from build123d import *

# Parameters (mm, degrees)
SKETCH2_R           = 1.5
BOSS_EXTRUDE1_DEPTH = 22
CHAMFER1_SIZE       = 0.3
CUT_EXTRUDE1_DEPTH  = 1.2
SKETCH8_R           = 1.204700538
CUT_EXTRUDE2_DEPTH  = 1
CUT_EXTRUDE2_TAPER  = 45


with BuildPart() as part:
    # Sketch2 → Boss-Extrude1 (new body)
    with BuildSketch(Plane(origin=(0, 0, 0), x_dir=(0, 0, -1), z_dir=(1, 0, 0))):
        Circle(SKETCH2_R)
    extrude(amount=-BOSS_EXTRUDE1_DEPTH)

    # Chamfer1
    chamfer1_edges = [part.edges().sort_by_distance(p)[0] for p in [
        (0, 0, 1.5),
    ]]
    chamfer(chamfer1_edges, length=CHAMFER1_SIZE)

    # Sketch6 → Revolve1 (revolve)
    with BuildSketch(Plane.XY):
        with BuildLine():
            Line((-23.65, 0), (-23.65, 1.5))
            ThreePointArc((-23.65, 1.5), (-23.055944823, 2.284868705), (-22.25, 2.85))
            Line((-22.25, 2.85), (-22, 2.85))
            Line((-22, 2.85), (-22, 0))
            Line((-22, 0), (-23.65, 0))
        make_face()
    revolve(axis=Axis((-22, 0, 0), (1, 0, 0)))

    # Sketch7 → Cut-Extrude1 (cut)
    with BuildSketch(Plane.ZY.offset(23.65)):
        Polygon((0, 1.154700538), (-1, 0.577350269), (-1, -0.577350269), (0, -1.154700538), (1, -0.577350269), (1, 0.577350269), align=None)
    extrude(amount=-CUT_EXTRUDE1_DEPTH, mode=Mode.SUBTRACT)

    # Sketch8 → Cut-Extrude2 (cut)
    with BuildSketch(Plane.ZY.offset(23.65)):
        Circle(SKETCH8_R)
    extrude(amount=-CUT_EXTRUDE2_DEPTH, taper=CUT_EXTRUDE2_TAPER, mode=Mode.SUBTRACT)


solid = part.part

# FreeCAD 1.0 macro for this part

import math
import FreeCAD as App
import Part
import Sketcher

V = App.Vector
Q = App.Units.Quantity


def edges_at(feature, points):
    """Names of the edges that pass closest to the given points."""
    edges = feature.Shape.Edges
    near = lambda p: min(range(len(edges)), key=lambda i: edges[i].distToShape(Part.Vertex(*p))[0])
    return sorted({f"Edge{near(p) + 1}" for p in points})


def add_polygon(sketch, points):
    """Adds a closed chain of lines whose ends are joined by coincident constraints."""
    first, n = sketch.GeometryCount, len(points)
    for a, b in zip(points, points[1:] + points[:1]):
        sketch.addGeometry(Part.LineSegment(App.Vector(*a, 0), App.Vector(*b, 0)), False)
    for i in range(n):
        sketch.addConstraint(Sketcher.Constraint("Coincident", first + i, 2, first + (i + 1) % n, 1))

doc = App.newDocument("Part")
body = doc.addObject("PartDesign::Body", "Body")

sketch1 = body.newObject("Sketcher::SketchObject", "Sketch")
sketch1.AttachmentSupport = (doc.getObject("YZ_Plane"), [""])
sketch1.MapMode = "FlatFace"
sketch1.addGeometry(Part.Circle(V(0, 0, 0), V(0, 0, 1), 1.5), False)
sketch1.addConstraint([
    Sketcher.Constraint("Coincident", 0, 3, -1, 1),
    Sketcher.Constraint("Diameter", 0, Q("3 mm")),
])
pad1 = body.newObject("PartDesign::Pad", "Pad")
pad1.Profile = sketch1
pad1.Length = 22
pad1.Reversed = True
doc.recompute()

chamfer = body.newObject("PartDesign::Chamfer", "Chamfer")
chamfer.Base = (pad1, edges_at(pad1, [(0, 0, 1.5)]))
chamfer.Size = 0.3

sketch2 = body.newObject("Sketcher::SketchObject", "Sketch001")
sketch2.AttachmentSupport = (doc.getObject("XY_Plane"), [""])
sketch2.MapMode = "FlatFace"
sketch2.addGeometry([
    Part.LineSegment(V(-23.65, 1.5, 0), V(-23.65, 0, 0)),
    Part.LineSegment(V(-23.65, 0, 0), V(-22, 0, 0)),
    Part.LineSegment(V(-22, 0, 0), V(-22, 2.85, 0)),
    Part.LineSegment(V(-22, 2.85, 0), V(-22.25, 2.85, 0)),
    Part.ArcOfCircle(Part.Circle(V(-20.85, 0, 0), V(0, 0, 1), 3.17), math.radians(116), math.radians(152)),
], False)
sketch2.addConstraint([
    Sketcher.Constraint("Coincident", 0, 2, 1, 1),
    Sketcher.Constraint("Coincident", 1, 2, 2, 1),
    Sketcher.Constraint("Coincident", 2, 2, 3, 1),
    Sketcher.Constraint("Coincident", 3, 2, 4, 1),
    Sketcher.Constraint("Coincident", 4, 2, 0, 1),
    Sketcher.Constraint("Vertical", 0),
    Sketcher.Constraint("Horizontal", 1),
    Sketcher.Constraint("Vertical", 2),
    Sketcher.Constraint("Horizontal", 3),
    Sketcher.Constraint("PointOnObject", 4, 3, -1),
    Sketcher.Constraint("PointOnObject", 0, 2, -1),
    Sketcher.Constraint("DistanceY", 0, 2, 0, 1, Q("1.5 mm")),
    Sketcher.Constraint("DistanceX", 1, 2, -1, 1, Q("22 mm")),
    Sketcher.Constraint("DistanceX", 1, 1, 1, 2, Q("1.65 mm")),
    Sketcher.Constraint("DistanceX", 3, 2, 3, 1, Q("0.25 mm")),
    Sketcher.Constraint("DistanceY", 2, 1, 2, 2, Q("2.85 mm")),
])
revolution = body.newObject("PartDesign::Revolution", "Revolution")
revolution.Profile = sketch2
revolution.ReferenceAxis = (sketch2, ["H_Axis"])
revolution.Angle = 360

sketch3 = body.newObject("Sketcher::SketchObject", "Sketch002")
sketch3.AttachmentSupport = (doc.getObject("YZ_Plane"), [""])
sketch3.MapMode = "FlatFace"
sketch3.AttachmentOffset = App.Placement(V(0, 0, -23.65), App.Rotation())
add_polygon(sketch3, [(1.2, 0), (0.6, -1), (-0.6, -1), (-1.2, 0), (-0.6, 1), (0.6, 1)])
sketch3.addConstraint([
    Sketcher.Constraint("Horizontal", 1),
    Sketcher.Constraint("Horizontal", 4),
    Sketcher.Constraint("Symmetric", 0, 2, 3, 2, -1, 1),
    Sketcher.Constraint("Symmetric", 2, 2, 5, 2, -1, 1),
    Sketcher.Constraint("PointOnObject", 2, 2, -1),
    Sketcher.Constraint("Parallel", 2, 5),
    Sketcher.Constraint("Vertical", 1, 2, 3, 2),
    Sketcher.Constraint("Angle", 0, Q("-120 deg")),
    Sketcher.Constraint("DistanceY", 0, 2, -1, 1, Q("1 mm")),
    Sketcher.Constraint("DistanceX", 1, 2, 1, 1, Q("1.154701 mm")),
])
pocket1 = body.newObject("PartDesign::Pocket", "Pocket")
pocket1.Profile = sketch3
pocket1.Length = 1.2
pocket1.Reversed = True

sketch4 = body.newObject("Sketcher::SketchObject", "Sketch003")
sketch4.AttachmentSupport = (doc.getObject("YZ_Plane"), [""])
sketch4.MapMode = "FlatFace"
sketch4.AttachmentOffset = App.Placement(V(0, 0, -23.65), App.Rotation())
sketch4.addGeometry(Part.Circle(V(0, 0, 0), V(0, 0, 1), 1.2), False)
sketch4.addConstraint([
    Sketcher.Constraint("Coincident", 0, 3, -1, 1),
    Sketcher.Constraint("Diameter", 0, Q("2.409401 mm")),
])
pocket2 = body.newObject("PartDesign::Pocket", "Pocket001")
pocket2.Profile = sketch4
pocket2.Length = 1
pocket2.Reversed = True
pocket2.TaperAngle = -45

doc.recompute()
